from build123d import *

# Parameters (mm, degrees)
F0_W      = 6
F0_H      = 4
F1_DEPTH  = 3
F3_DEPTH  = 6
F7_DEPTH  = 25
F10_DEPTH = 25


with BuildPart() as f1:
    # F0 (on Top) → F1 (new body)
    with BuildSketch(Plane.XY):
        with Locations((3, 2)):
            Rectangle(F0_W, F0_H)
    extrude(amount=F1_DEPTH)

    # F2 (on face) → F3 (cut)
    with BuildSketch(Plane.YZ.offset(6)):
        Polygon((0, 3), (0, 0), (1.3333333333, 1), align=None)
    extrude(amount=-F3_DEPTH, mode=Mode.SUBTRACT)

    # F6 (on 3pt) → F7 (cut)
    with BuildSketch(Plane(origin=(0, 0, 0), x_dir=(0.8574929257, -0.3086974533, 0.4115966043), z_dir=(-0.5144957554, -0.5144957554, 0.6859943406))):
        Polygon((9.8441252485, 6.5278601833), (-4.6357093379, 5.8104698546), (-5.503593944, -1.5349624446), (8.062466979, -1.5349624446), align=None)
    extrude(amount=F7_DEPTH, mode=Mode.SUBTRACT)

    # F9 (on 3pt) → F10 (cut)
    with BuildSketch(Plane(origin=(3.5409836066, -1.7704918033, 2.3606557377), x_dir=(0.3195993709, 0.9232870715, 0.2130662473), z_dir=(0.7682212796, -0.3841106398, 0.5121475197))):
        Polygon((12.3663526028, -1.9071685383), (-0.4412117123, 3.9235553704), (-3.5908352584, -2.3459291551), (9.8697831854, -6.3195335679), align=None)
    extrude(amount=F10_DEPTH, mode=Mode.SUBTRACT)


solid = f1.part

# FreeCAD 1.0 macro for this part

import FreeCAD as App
import Part
import Sketcher


def add_polygon(sketch, points):
    """Adds a closed chain of lines whose ends are joined by coincident constraints."""
    first, n = sketch.GeometryCount, len(points)
    for a, b in zip(points, points[1:] + points[:1]):
        sketch.addGeometry(Part.LineSegment(App.Vector(*a, 0), App.Vector(*b, 0)), False)
    for i in range(n):
        sketch.addConstraint(Sketcher.Constraint("Coincident", first + i, 2, first + (i + 1) % n, 1))

doc = App.newDocument("Part")
body = doc.addObject("PartDesign::Body", "Body")

# Sketch on XY plane
sketch1 = body.newObject("Sketcher::SketchObject", "Sketch")
sketch1.AttachmentSupport = (doc.getObject("XY_Plane"), [""])
sketch1.MapMode = "FlatFace"
add_polygon(sketch1, [(0, 4), (0, 0), (6, 0), (6, 4)])  # lines 0-3
sketch1.addConstraint(Sketcher.Constraint("Vertical", 0))
sketch1.addConstraint(Sketcher.Constraint("Horizontal", 1))
sketch1.addConstraint(Sketcher.Constraint("Vertical", 2))
sketch1.addConstraint(Sketcher.Constraint("Horizontal", 3))
sketch1.addConstraint(Sketcher.Constraint("Coincident", 0, 2, -1, 1))
sketch1.addConstraint(Sketcher.Constraint("DistanceX", 1, 1, 1, 2, 6.0))
sketch1.addConstraint(Sketcher.Constraint("DistanceY", 0, 2, 0, 1, 4.0))
pad1 = body.newObject("PartDesign::Pad", "Pad")
pad1.Profile = sketch1
pad1.Length = 3

# Sketch on YZ plane
sketch2 = body.newObject("Sketcher::SketchObject", "Sketch001")
sketch2.AttachmentSupport = (doc.getObject("YZ_Plane"), [""])
sketch2.MapMode = "FlatFace"
sketch2.AttachmentOffset = App.Placement(App.Vector(0, 0, 6), App.Rotation())
add_polygon(sketch2, [(0, 3), (0, 0), (1.3, 1)])  # lines 0-2
sketch2.addConstraint(Sketcher.Constraint("Vertical", 0))
sketch2.addConstraint(Sketcher.Constraint("Coincident", 0, 2, -1, 1))
sketch2.addConstraint(Sketcher.Constraint("DistanceY", 0, 2, 0, 1, 3.0))
sketch2.addConstraint(Sketcher.Constraint("DistanceY", -1, 1, 1, 2, 1.0))
sketch2.addConstraint(Sketcher.Constraint("Distance", 2, 2.403701))
pocket1 = body.newObject("PartDesign::Pocket", "Pocket")
pocket1.Profile = sketch2
pocket1.Length = 6

# Sketch on an angled plane
sketch3 = body.newObject("Sketcher::SketchObject", "Sketch002")
sketch3.Placement = App.Placement(App.Vector(0, 0, 0), App.Rotation(App.Vector(0.857492926, -0.308697453, 0.411596604), App.Vector(0, 0.8, 0.6), App.Vector(-0.514495755, -0.514495755, 0.685994341), "ZXY"))
add_polygon(sketch3, [(10, 7), (-5, 6), (-6, -2), (8, -2)])  # lines 0-3
sketch3.addConstraint(Sketcher.Constraint("Horizontal", 2))
sketch3.addConstraint(Sketcher.Constraint("DistanceX", 2, 1, 2, 2, 13.566061))
sketch3.addConstraint(Sketcher.Constraint("DistanceX", 0, 2, -1, 1, 4.635709))
sketch3.addConstraint(Sketcher.Constraint("DistanceY", -1, 1, 0, 2, 5.81047))
sketch3.addConstraint(Sketcher.Constraint("DistanceY", -1, 1, 3, 2, 6.52786))
sketch3.addConstraint(Sketcher.Constraint("DistanceX", 2, 2, 3, 2, 1.781658))
sketch3.addConstraint(Sketcher.Constraint("Distance", 0, 14.497595))
sketch3.addConstraint(Sketcher.Constraint("Distance", 1, 7.396526))
pocket2 = body.newObject("PartDesign::Pocket", "Pocket001")
pocket2.Profile = sketch3
pocket2.Length = 25
pocket2.Reversed = True

# Sketch on an angled plane
sketch4 = body.newObject("Sketcher::SketchObject", "Sketch003")
sketch4.Placement = App.Placement(App.Vector(3.540984, -1.770492, 2.360656), App.Rotation(App.Vector(0.319599371, 0.923287071, 0.213066247), App.Vector(-0.554700196, 0, 0.832050294), App.Vector(0.76822128, -0.38411064, 0.51214752), "ZXY"))
add_polygon(sketch4, [(12, -2), (0, 4), (-4, -2), (10, -6)])  # lines 0-3
sketch4.addConstraint(Sketcher.Constraint("Distance", 0, 14.07235))
sketch4.addConstraint(Sketcher.Constraint("DistanceX", 0, 2, -1, 1, 0.441212))
sketch4.addConstraint(Sketcher.Constraint("DistanceY", 1, 2, -1, 1, 2.345929))
sketch4.addConstraint(Sketcher.Constraint("DistanceY", 3, 2, -1, 1, 1.907169))
sketch4.addConstraint(Sketcher.Constraint("DistanceX", 1, 2, 2, 2, 13.460618))
sketch4.addConstraint(Sketcher.Constraint("DistanceY", 2, 2, 0, 2, 10.243089))
sketch4.addConstraint(Sketcher.Constraint("DistanceX", 2, 2, 3, 2, 2.496569))
sketch4.addConstraint(Sketcher.Constraint("Distance", 1, 7.016165))
pocket3 = body.newObject("PartDesign::Pocket", "Pocket002")
pocket3.Profile = sketch4
pocket3.Length = 25
pocket3.Reversed = True

doc.recompute()
